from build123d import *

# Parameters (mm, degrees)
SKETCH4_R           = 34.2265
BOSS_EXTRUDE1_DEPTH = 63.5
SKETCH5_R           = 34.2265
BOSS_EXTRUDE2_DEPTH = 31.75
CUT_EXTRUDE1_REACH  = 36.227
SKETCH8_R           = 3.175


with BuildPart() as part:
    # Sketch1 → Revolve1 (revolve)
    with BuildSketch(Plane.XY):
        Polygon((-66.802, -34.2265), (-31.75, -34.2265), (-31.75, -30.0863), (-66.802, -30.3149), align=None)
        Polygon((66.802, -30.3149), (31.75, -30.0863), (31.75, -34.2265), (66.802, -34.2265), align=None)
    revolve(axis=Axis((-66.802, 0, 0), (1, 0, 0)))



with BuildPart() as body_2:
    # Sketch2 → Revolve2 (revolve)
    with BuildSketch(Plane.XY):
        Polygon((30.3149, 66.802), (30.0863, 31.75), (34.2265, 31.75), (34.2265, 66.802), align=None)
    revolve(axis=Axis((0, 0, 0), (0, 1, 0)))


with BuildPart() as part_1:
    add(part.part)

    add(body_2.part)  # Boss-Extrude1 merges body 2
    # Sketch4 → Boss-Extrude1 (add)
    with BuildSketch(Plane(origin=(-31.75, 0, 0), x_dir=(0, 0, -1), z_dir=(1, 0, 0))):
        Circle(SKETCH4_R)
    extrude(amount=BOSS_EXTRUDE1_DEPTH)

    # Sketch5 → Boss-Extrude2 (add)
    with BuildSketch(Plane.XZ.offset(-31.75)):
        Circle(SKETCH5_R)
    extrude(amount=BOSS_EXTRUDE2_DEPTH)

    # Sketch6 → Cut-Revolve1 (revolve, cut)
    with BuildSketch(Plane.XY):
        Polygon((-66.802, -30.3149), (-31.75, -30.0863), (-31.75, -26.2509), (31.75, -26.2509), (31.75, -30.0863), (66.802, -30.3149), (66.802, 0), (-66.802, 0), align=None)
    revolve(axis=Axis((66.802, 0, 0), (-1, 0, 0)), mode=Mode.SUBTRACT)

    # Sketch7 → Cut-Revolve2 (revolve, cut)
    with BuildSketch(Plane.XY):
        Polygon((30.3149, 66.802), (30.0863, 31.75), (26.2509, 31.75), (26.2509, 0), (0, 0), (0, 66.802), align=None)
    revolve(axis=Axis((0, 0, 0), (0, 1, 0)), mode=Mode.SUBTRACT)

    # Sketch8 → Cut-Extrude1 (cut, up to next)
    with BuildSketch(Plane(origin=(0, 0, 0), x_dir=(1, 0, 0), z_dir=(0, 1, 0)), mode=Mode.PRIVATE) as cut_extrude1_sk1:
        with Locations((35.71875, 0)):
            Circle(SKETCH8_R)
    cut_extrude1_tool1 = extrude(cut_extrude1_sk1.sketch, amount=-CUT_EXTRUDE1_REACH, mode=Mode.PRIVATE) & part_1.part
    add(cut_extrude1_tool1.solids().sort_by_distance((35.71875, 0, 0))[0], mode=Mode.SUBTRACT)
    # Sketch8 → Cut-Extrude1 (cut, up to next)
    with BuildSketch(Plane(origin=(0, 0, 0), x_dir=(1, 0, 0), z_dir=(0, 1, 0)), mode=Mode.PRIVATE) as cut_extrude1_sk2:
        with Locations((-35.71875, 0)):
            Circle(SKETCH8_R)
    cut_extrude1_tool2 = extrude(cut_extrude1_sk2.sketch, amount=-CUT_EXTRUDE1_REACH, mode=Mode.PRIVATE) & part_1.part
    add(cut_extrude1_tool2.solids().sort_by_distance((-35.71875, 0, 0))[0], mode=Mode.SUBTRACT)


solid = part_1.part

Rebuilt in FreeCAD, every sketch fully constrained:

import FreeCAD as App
import Part
import Sketcher
from FreeCAD import Vector
Q = App.Units.Quantity


def add_polygon(sketch, points):
    """Adds a closed chain of lines whose ends are joined by coincident constraints."""
    first, n = sketch.GeometryCount, len(points)
    for a, b in zip(points, points[1:] + points[:1]):
        sketch.addGeometry(Part.LineSegment(App.Vector(*a, 0), App.Vector(*b, 0)), False)
    for i in range(n):
        sketch.addConstraint(Sketcher.Constraint("Coincident", first + i, 2, first + (i + 1) % n, 1))

doc = App.newDocument("Part")
body = doc.addObject("PartDesign::Body", "Body")
body.AllowCompound = True

sketch1 = body.newObject("Sketcher::SketchObject", "Sketch")
sketch1.AttachmentSupport = (doc.getObject("XY_Plane"), [""])
sketch1.MapMode = "FlatFace"
add_polygon(sketch1, [(-66.8, -34.2), (-31.8, -34.2), (-31.8, -30.1), (-66.8, -30.3)])
add_polygon(sketch1, [(66.8, -30.3), (31.8, -30.1), (31.8, -34.2), (66.8, -34.2)])
sketch1.addConstraint([
    Sketcher.Constraint("Horizontal", 0),
    Sketcher.Constraint("Vertical", 1),
    Sketcher.Constraint("Vertical", 3),
    Sketcher.Constraint("Vertical", 5),
    Sketcher.Constraint("Horizontal", 6),
    Sketcher.Constraint("Vertical", 7),
    Sketcher.Constraint("Symmetric", 1, 2, 4, 2, -2),
    Sketcher.Constraint("Symmetric", 3, 2, 6, 2, -2),
    Sketcher.Constraint("Horizontal", 2, 2, 7, 2),
    Sketcher.Constraint("DistanceX", 0, 1, 0, 2, Q("1.38 in")),
    Sketcher.Constraint("DistanceX", 1, 2, 4, 2, Q("2.5 in")),
    Sketcher.Constraint("DistanceY", 1, 1, 1, 2, Q("0.163 in")),
    Sketcher.Constraint("DistanceY", 3, 2, 3, 1, Q("0.154 in")),
    Sketcher.Constraint("DistanceY", 0, 2, -1, 1, Q("1.3475 in")),
])
revolution = body.newObject("PartDesign::Revolution", "Revolution")
revolution.Profile = sketch1
revolution.ReferenceAxis = (sketch1, ["H_Axis"])
revolution.Angle = 360
body2 = doc.addObject("PartDesign::Body", "Body001")

sketch2 = body2.newObject("Sketcher::SketchObject", "Sketch001")
sketch2.AttachmentSupport = (doc.getObject("XY_Plane001"), [""])
sketch2.MapMode = "FlatFace"
add_polygon(sketch2, [(30.3, 66.8), (30.1, 31.8), (34.2, 31.8), (34.2, 66.8)])
sketch2.addConstraint([
    Sketcher.Constraint("Horizontal", 1),
    Sketcher.Constraint("Vertical", 2),
    Sketcher.Constraint("Horizontal", 3),
    Sketcher.Constraint("DistanceY", 2, 1, 2, 2, Q("1.38 in")),
    Sketcher.Constraint("DistanceX", 1, 1, 1, 2, Q("0.163 in")),
    Sketcher.Constraint("DistanceX", 3, 2, 3, 1, Q("0.154 in")),
    Sketcher.Constraint("DistanceY", -1, 1, 0, 2, Q("1.25 in")),
    Sketcher.Constraint("DistanceX", -1, 1, 0, 2, Q("1.1845 in")),
])
revolution2 = body2.newObject("PartDesign::Revolution", "Revolution001")
revolution2.Profile = sketch2
revolution2.ReferenceAxis = (sketch2, ["V_Axis"])
revolution2.Angle = 360
doc.recompute()

boolean = body.newObject("PartDesign::Boolean", "Boolean")
boolean.Type = "Fuse"
boolean.addObjects([body2])

sketch3 = body.newObject("Sketcher::SketchObject", "Sketch002")
sketch3.AttachmentSupport = (doc.getObject("YZ_Plane"), [""])
sketch3.MapMode = "FlatFace"
sketch3.AttachmentOffset = App.Placement(Vector(0, 0, -1.25 * 25.4), App.Rotation())
sketch3.addGeometry(Part.Circle(Vector(0, 0, 0), Vector(0, 0, 1), 34), False)
sketch3.addConstraint([
    Sketcher.Constraint("Coincident", 0, 3, -1, 1),
    Sketcher.Constraint("Diameter", 0, Q("2.695 in")),
])
pad1 = body.newObject("PartDesign::Pad", "Pad")
pad1.Profile = sketch3
pad1.Length = Q("2.5 in")

sketch4 = body.newObject("Sketcher::SketchObject", "Sketch003")
sketch4.AttachmentSupport = (doc.getObject("XZ_Plane"), [""])
sketch4.MapMode = "FlatFace"
sketch4.AttachmentOffset = App.Placement(Vector(0, 0, -1.25 * 25.4), App.Rotation())
sketch4.addGeometry(Part.Circle(Vector(0, 0, 0), Vector(0, 0, 1), 34), False)
sketch4.addConstraint([
    Sketcher.Constraint("Coincident", 0, 3, -1, 1),
    Sketcher.Constraint("Diameter", 0, Q("2.695 in")),
])
pad2 = body.newObject("PartDesign::Pad", "Pad001")
pad2.Profile = sketch4
pad2.Length = Q("1.25 in")

sketch5 = body.newObject("Sketcher::SketchObject", "Sketch004")
sketch5.AttachmentSupport = (doc.getObject("XY_Plane"), [""])
sketch5.MapMode = "FlatFace"
add_polygon(sketch5, [(-66.8, -30.3), (-31.8, -30.1), (-31.8, -26.3), (31.8, -26.3), (31.8, -30.1), (66.8, -30.3), (66.8, 0), (-66.8, 0)])
sketch5.addConstraint([
    Sketcher.Constraint("Vertical", 1),
    Sketcher.Constraint("Horizontal", 2),
    Sketcher.Constraint("Vertical", 3),
    Sketcher.Constraint("Vertical", 5),
    Sketcher.Constraint("Horizontal", 6),
    Sketcher.Constraint("Vertical", 7),
    Sketcher.Constraint("Symmetric", 5, 2, 6, 2, -1, 1),
    Sketcher.Constraint("Symmetric", 0, 2, 3, 2, -2),
    Sketcher.Constraint("Horizontal", 4, 2, 7, 2),
    Sketcher.Constraint("DistanceX", 2, 1, 2, 2, Q("2.5 in")),
    Sketcher.Constraint("DistanceX", 6, 2, 6, 1, Q("5.26 in")),
    Sketcher.Constraint("DistanceY", 1, 1, 1, 2, Q("0.151 in")),
    Sketcher.Constraint("DistanceY", 4, 2, 2, 2, Q("0.16 in")),
    Sketcher.Constraint("DistanceY", 5, 1, 5, 2, Q("1.1935 in")),
])
groove = body.newObject("PartDesign::Groove", "Groove")
groove.Profile = sketch5
groove.ReferenceAxis = (sketch5, ["H_Axis"])
groove.Angle = 360

sketch6 = body.newObject("Sketcher::SketchObject", "Sketch005")
sketch6.AttachmentSupport = (doc.getObject("XY_Plane"), [""])
sketch6.MapMode = "FlatFace"
add_polygon(sketch6, [(30.1, 31.8), (30.3, 66.8), (0, 66.8), (0, 0), (26.3, 0), (26.3, 31.8)])
sketch6.addConstraint([
    Sketcher.Constraint("Horizontal", 1),
    Sketcher.Constraint("Vertical", 2),
    Sketcher.Constraint("Horizontal", 3),
    Sketcher.Constraint("Vertical", 4),
    Sketcher.Constraint("Horizontal", 5),
    Sketcher.Constraint("Coincident", 2, 2, -1, 1),
    Sketcher.Constraint("DistanceY", 2, 2, 2, 1, Q("2.63 in")),
    Sketcher.Constraint("DistanceY", 4, 1, 4, 2, Q("1.25 in")),
    Sketcher.Constraint("DistanceX", 5, 1, 5, 2, Q("0.151 in")),
    Sketcher.Constraint("DistanceX", 3, 2, 0, 2, Q("0.16 in")),
    Sketcher.Constraint("DistanceX", 1, 2, 1, 1, Q("1.1935 in")),
])
groove2 = body.newObject("PartDesign::Groove", "Groove001")
groove2.Profile = sketch6
groove2.ReferenceAxis = (sketch6, ["V_Axis"])
groove2.Angle = 360

sketch7 = body.newObject("Sketcher::SketchObject", "Sketch006")
sketch7.AttachmentSupport = (doc.getObject("XZ_Plane"), [""])
sketch7.MapMode = "FlatFace"
sketch7.addGeometry(Part.Circle(Vector(35.7, 0, 0), Vector(0, 0, 1), 3.2), False)
sketch7.addConstraint([
    Sketcher.Constraint("PointOnObject", 0, 3, -1),
    Sketcher.Constraint("Diameter", 0, Q("0.25 in")),
    Sketcher.Constraint("DistanceX", -1, 1, 0, 3, Q("1.40625 in")),
])
pocket1 = body.newObject("PartDesign::Pocket", "Pocket")
pocket1.Profile = sketch7
pocket1.Length = Q("1.3475 in")
pocket1.Reversed = True

sketch8 = body.newObject("Sketcher::SketchObject", "Sketch007")
sketch8.AttachmentSupport = (doc.getObject("XZ_Plane"), [""])
sketch8.MapMode = "FlatFace"
sketch8.addGeometry(Part.Circle(Vector(-35.7, 0, 0), Vector(0, 0, 1), 3.2), False)
sketch8.addConstraint([
    Sketcher.Constraint("PointOnObject", 0, 3, -1),
    Sketcher.Constraint("Diameter", 0, Q("0.25 in")),
    Sketcher.Constraint("DistanceX", 0, 3, -1, 1, Q("1.40625 in")),
])
pocket2 = body.newObject("PartDesign::Pocket", "Pocket001")
pocket2.Profile = sketch8
pocket2.Length = Q("1.3475 in")
pocket2.Reversed = True

doc.recompute()
